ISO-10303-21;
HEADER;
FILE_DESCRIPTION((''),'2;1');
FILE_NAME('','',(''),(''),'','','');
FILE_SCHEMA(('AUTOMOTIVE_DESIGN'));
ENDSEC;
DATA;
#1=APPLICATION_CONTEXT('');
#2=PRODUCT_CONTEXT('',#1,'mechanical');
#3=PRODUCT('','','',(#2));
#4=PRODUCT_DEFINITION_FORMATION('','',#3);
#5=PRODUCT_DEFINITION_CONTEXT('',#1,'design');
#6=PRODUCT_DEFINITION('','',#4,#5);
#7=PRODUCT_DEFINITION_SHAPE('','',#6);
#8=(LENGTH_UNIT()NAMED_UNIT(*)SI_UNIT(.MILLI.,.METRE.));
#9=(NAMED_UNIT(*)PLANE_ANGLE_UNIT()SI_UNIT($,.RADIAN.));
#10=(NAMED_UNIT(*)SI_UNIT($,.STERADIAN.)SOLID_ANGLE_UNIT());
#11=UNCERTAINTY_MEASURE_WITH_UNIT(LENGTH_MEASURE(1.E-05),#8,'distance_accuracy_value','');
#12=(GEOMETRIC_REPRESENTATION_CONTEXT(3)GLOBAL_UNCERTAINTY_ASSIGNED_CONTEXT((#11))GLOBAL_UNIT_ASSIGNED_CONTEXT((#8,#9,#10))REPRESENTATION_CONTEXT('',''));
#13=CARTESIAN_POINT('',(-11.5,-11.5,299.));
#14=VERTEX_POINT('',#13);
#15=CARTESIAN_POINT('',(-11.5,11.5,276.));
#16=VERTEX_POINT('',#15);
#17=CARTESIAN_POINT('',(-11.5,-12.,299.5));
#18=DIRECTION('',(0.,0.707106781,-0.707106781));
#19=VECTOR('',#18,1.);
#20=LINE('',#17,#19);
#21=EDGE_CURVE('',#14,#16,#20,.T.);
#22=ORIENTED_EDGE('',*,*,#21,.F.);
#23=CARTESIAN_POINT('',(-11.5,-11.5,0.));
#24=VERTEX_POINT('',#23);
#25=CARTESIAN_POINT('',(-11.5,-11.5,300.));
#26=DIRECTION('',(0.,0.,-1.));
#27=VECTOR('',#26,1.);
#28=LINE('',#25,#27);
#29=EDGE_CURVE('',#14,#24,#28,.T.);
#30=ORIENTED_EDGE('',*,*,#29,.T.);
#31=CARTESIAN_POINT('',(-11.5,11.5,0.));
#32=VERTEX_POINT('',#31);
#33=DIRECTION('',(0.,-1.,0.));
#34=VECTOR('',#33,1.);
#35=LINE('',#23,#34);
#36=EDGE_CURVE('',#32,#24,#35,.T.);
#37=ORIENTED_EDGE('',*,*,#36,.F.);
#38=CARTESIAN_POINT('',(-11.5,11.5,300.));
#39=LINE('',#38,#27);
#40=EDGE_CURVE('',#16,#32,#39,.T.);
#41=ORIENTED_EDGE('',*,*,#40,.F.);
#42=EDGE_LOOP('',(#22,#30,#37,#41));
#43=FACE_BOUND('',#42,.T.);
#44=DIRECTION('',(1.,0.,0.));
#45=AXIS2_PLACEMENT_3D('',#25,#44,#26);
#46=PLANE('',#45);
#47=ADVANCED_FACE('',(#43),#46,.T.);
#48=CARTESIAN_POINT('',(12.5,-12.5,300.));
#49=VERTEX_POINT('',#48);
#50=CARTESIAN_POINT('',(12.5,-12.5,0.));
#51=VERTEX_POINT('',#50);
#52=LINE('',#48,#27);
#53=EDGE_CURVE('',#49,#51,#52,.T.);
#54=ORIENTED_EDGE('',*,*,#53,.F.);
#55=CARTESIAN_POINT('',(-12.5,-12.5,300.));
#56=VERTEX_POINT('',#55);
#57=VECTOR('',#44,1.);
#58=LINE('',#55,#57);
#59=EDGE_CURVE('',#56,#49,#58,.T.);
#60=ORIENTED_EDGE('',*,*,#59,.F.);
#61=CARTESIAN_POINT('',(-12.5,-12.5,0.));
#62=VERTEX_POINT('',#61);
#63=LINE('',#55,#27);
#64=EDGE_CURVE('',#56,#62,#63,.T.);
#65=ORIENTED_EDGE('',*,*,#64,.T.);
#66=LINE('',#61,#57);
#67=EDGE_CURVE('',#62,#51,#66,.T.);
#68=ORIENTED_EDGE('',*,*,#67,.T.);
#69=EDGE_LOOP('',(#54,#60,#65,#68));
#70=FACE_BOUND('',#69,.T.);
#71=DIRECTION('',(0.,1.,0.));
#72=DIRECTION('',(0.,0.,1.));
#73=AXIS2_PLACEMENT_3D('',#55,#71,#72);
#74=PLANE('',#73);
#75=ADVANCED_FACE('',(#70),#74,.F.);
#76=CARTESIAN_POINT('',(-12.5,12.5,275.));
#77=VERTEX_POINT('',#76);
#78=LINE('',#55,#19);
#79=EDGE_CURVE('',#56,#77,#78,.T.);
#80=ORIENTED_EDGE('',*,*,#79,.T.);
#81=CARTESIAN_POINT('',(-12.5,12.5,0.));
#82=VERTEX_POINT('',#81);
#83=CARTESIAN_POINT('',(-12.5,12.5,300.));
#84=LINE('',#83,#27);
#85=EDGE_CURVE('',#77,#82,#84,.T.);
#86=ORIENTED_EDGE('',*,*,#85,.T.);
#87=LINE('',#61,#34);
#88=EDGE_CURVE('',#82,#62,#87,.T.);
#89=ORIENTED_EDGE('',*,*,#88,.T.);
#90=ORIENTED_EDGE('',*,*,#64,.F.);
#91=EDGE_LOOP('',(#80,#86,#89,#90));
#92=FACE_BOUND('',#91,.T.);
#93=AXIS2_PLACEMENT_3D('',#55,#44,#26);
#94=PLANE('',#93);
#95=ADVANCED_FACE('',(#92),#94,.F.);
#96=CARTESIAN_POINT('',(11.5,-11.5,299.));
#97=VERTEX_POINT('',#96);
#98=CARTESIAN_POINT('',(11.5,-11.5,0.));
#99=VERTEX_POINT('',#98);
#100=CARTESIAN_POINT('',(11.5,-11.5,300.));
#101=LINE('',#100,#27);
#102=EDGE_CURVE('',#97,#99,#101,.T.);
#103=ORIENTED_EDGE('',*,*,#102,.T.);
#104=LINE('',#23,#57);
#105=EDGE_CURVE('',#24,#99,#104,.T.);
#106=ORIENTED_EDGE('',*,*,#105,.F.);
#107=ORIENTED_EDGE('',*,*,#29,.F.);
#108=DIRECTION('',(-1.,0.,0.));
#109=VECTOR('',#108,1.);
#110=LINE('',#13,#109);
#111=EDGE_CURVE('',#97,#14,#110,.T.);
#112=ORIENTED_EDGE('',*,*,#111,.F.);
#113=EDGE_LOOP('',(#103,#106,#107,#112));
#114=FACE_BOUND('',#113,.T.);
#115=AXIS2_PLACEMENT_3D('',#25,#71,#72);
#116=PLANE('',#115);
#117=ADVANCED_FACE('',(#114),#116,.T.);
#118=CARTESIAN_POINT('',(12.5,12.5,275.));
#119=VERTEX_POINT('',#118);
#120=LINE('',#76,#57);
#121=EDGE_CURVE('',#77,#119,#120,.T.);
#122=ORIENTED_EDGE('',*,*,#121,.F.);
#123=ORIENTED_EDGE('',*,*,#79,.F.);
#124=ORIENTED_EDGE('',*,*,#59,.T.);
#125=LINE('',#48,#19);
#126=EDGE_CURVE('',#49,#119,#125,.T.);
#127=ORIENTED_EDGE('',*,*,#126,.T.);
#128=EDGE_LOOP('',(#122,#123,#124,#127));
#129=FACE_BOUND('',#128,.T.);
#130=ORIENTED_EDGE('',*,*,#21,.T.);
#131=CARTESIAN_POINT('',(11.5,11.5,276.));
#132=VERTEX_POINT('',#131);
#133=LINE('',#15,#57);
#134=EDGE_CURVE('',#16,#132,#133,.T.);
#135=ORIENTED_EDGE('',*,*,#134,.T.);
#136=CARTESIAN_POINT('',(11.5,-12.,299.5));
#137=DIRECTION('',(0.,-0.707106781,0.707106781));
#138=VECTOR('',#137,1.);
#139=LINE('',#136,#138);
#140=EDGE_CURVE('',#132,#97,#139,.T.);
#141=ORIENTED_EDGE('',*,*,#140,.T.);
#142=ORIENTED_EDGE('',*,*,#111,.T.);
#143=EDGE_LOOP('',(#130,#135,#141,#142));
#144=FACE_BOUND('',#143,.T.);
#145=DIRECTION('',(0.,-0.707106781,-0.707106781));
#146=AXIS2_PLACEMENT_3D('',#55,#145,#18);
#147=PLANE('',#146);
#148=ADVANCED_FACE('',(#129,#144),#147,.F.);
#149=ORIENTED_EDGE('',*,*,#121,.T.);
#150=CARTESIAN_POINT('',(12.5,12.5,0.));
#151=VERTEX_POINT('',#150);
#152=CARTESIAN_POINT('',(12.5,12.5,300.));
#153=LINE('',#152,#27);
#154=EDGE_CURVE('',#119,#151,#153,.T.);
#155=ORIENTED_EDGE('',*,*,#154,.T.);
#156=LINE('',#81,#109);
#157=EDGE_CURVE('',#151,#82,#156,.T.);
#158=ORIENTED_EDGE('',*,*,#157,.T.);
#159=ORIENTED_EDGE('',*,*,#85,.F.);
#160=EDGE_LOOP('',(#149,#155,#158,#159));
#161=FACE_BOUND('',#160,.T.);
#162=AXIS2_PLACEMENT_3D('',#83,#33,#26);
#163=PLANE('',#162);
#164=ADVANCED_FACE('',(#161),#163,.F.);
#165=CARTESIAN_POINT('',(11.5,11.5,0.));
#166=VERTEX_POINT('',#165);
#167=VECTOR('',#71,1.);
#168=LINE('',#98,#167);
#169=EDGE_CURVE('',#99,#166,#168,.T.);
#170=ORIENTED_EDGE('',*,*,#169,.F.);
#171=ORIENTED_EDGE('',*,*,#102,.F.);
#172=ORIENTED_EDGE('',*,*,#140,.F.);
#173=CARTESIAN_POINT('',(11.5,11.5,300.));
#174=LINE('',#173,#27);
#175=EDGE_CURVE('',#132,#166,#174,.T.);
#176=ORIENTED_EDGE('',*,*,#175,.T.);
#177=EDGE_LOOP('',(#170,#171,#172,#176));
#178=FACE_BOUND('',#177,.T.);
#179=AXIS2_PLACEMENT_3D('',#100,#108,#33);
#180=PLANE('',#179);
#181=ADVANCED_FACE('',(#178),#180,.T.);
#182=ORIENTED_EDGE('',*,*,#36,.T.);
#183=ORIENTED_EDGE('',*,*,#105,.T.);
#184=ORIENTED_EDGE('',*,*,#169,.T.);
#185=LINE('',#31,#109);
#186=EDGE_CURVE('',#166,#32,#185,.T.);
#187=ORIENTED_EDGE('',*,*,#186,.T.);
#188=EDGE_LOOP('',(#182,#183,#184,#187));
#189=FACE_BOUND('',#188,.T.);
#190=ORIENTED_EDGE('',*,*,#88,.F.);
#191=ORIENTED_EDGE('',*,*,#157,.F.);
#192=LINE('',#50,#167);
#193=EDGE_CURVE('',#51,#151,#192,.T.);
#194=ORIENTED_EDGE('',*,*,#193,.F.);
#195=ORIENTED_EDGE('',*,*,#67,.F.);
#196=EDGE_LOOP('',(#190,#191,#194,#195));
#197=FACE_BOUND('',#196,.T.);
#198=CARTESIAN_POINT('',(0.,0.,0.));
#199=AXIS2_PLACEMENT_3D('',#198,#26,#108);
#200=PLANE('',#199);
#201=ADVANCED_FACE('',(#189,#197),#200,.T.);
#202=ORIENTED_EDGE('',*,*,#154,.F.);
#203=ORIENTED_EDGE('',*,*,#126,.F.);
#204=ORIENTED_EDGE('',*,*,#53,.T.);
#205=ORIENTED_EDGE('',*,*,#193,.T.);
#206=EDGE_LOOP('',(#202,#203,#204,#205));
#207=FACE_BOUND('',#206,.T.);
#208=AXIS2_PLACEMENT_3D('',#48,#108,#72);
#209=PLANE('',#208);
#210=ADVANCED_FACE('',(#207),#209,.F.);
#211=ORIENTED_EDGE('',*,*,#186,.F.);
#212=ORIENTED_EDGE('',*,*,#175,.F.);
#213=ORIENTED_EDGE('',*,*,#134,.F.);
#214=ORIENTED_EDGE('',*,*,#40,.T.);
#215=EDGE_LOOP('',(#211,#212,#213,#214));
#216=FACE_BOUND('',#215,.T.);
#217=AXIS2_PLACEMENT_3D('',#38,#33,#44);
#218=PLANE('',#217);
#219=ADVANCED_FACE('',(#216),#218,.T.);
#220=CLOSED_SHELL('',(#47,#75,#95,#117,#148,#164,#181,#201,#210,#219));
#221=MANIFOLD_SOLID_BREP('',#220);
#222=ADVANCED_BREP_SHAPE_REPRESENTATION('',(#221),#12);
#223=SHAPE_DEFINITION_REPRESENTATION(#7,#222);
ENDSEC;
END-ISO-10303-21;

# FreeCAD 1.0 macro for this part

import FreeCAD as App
import Part
import Sketcher


def add_polygon(sketch, points):
    """Adds a closed chain of lines whose ends are joined by coincident constraints."""
    first, n = sketch.GeometryCount, len(points)
    for a, b in zip(points, points[1:] + points[:1]):
        sketch.addGeometry(Part.LineSegment(App.Vector(*a, 0), App.Vector(*b, 0)), False)
    for i in range(n):
        sketch.addConstraint(Sketcher.Constraint("Coincident", first + i, 2, first + (i + 1) % n, 1))

doc = App.newDocument("Part")
body = doc.addObject("PartDesign::Body", "Body")

sketch1 = body.newObject("Sketcher::SketchObject", "Sketch")
sketch1.AttachmentSupport = (doc.getObject("XY_Plane"), [""])
sketch1.MapMode = "FlatFace"
add_polygon(sketch1, [(-12.5, 12.5), (-12.5, -12.5), (12.5, -12.5), (12.5, 12.5)])
add_polygon(sketch1, [(11.5, -11.5), (-11.5, -11.5), (-11.5, 11.5), (11.5, 11.5)])
sketch1.addConstraint(Sketcher.Constraint("Vertical", 0))
sketch1.addConstraint(Sketcher.Constraint("Horizontal", 1))
sketch1.addConstraint(Sketcher.Constraint("Vertical", 2))
sketch1.addConstraint(Sketcher.Constraint("Horizontal", 3))
sketch1.addConstraint(Sketcher.Constraint("Horizontal", 4))
sketch1.addConstraint(Sketcher.Constraint("Vertical", 5))
sketch1.addConstraint(Sketcher.Constraint("Horizontal", 6))
sketch1.addConstraint(Sketcher.Constraint("Vertical", 7))
sketch1.addConstraint(Sketcher.Constraint("Symmetric", 0, 2, 2, 2, -1, 1))
sketch1.addConstraint(Sketcher.Constraint("Symmetric", 4, 2, 6, 2, -1, 1))
sketch1.addConstraint(Sketcher.Constraint("Equal", 3, 0))
sketch1.addConstraint(Sketcher.Constraint("Equal", 6, 5))
sketch1.addConstraint(Sketcher.Constraint("DistanceX", 1, 1, 1, 2, 25.0))
sketch1.addConstraint(Sketcher.Constraint("DistanceX", 4, 2, 4, 1, 23.0))
pad1 = body.newObject("PartDesign::Pad", "Pad")
pad1.Profile = sketch1
pad1.Length = 300

sketch2 = body.newObject("Sketcher::SketchObject", "Sketch001")
sketch2.AttachmentSupport = (doc.getObject("YZ_Plane"), [""])
sketch2.MapMode = "FlatFace"
sketch2.AttachmentOffset = App.Placement(App.Vector(0, 0, 12.5), App.Rotation())
add_polygon(sketch2, [(-12.5, 300), (12.5, 275), (12.5, 300)])
sketch2.addConstraint(Sketcher.Constraint("Vertical", 1))
sketch2.addConstraint(Sketcher.Constraint("Horizontal", 2))
sketch2.addConstraint(Sketcher.Constraint("Equal", 2, 1))
sketch2.addConstraint(Sketcher.Constraint("DistanceX", 2, 2, 2, 1, 25.0))
sketch2.addConstraint(Sketcher.Constraint("DistanceY", -1, 1, 0, 2, 275.0))
sketch2.addConstraint(Sketcher.Constraint("DistanceX", -1, 1, 0, 2, 12.5))
pocket1 = body.newObject("PartDesign::Pocket", "Pocket")
pocket1.Profile = sketch2
pocket1.Type = "ThroughAll"

doc.recompute()
